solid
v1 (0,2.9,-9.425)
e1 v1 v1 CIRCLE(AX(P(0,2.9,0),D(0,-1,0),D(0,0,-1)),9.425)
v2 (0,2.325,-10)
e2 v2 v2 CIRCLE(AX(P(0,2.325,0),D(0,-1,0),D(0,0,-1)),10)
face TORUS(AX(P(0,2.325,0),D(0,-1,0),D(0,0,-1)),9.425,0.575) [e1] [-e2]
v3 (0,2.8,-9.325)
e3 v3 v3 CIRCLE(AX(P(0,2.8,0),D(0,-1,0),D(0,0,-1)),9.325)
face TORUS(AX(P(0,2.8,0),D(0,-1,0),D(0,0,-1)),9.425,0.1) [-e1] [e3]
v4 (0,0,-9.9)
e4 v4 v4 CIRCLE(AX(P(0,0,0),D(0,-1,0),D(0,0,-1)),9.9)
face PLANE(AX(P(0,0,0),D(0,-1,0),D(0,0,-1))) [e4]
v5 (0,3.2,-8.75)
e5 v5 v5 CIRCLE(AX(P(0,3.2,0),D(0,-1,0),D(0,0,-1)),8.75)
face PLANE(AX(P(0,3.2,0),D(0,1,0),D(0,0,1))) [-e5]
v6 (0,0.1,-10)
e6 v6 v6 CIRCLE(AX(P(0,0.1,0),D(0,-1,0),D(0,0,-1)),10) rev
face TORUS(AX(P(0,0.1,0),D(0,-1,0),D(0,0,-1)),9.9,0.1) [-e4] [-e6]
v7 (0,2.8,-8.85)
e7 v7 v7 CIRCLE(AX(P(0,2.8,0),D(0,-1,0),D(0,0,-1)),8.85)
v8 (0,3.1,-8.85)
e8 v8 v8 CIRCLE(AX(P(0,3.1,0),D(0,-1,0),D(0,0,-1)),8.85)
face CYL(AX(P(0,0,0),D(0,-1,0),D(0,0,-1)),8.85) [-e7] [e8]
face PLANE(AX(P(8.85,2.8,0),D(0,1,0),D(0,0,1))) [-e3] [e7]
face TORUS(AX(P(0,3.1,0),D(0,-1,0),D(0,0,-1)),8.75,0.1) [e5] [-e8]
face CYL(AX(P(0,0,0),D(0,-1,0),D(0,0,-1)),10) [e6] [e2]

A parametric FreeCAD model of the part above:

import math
import FreeCAD as App
import Part
import Sketcher
from FreeCAD import Vector
Q = App.Units.Quantity


def edges_at(feature, points):
    """Names of the edges that pass closest to the given points."""
    edges = feature.Shape.Edges
    near = lambda p: min(range(len(edges)), key=lambda i: edges[i].distToShape(Part.Vertex(*p))[0])
    return sorted({f"Edge{near(p) + 1}" for p in points})

doc = App.newDocument("Part")
body = doc.addObject("PartDesign::Body", "Body")

# Sketch on XY plane
sketch1 = body.newObject("Sketcher::SketchObject", "Sketch")
sketch1.AttachmentSupport = (doc.getObject("XY_Plane"), [""])
sketch1.MapMode = "FlatFace"
sketch1.addGeometry(Part.LineSegment(Vector(0, 0, 0), Vector(10, 0, 0)), False)
sketch1.addGeometry(Part.LineSegment(Vector(10, 0, 0), Vector(10, 2.325, 0)), False)
sketch1.addGeometry(Part.ArcOfCircle(Part.Circle(Vector(9.425, 2.325, 0), Vector(0, 0, 1), 0.575), math.radians(0), math.radians(90)), False)
sketch1.addGeometry(Part.ArcOfCircle(Part.Circle(Vector(9.425, 2.8, 0), Vector(0, 0, 1), 0.1), math.radians(90), math.radians(180)), False)
sketch1.addGeometry(Part.LineSegment(Vector(9.325, 2.8, 0), Vector(8.85, 2.8, 0)), False)
sketch1.addGeometry(Part.LineSegment(Vector(8.85, 2.8, 0), Vector(8.85, 3.1, 0)), False)
sketch1.addGeometry(Part.ArcOfCircle(Part.Circle(Vector(8.75, 3.1, 0), Vector(0, 0, 1), 0.1), math.radians(0), math.radians(90)), False)
sketch1.addGeometry(Part.LineSegment(Vector(8.75, 3.2, 0), Vector(0, 3.2, 0)), False)
sketch1.addGeometry(Part.LineSegment(Vector(0, 3.2, 0), Vector(0, 0, 0)), False)
sketch1.addConstraint(Sketcher.Constraint("Coincident", 0, 2, 1, 1))
sketch1.addConstraint(Sketcher.Constraint("Tangent", 1, 2, 2, 1))
sketch1.addConstraint(Sketcher.Constraint("Tangent", 2, 2, 3, 1))
sketch1.addConstraint(Sketcher.Constraint("Coincident", 3, 2, 4, 1))
sketch1.addConstraint(Sketcher.Constraint("Coincident", 4, 2, 5, 1))
sketch1.addConstraint(Sketcher.Constraint("Tangent", 5, 2, 6, 1))
sketch1.addConstraint(Sketcher.Constraint("Tangent", 6, 2, 7, 1))
sketch1.addConstraint(Sketcher.Constraint("Coincident", 7, 2, 8, 1))
sketch1.addConstraint(Sketcher.Constraint("Coincident", 8, 2, 0, 1))
sketch1.addConstraint(Sketcher.Constraint("Horizontal", 0))
sketch1.addConstraint(Sketcher.Constraint("Vertical", 1))
sketch1.addConstraint(Sketcher.Constraint("Horizontal", 4))
sketch1.addConstraint(Sketcher.Constraint("Vertical", 5))
sketch1.addConstraint(Sketcher.Constraint("Horizontal", 7))
sketch1.addConstraint(Sketcher.Constraint("Vertical", 8))
sketch1.addConstraint(Sketcher.Constraint("Coincident", 8, 2, -1, 1))
sketch1.addConstraint(Sketcher.Constraint("Equal", 3, 6))
sketch1.addConstraint(Sketcher.Constraint("Vertical", 2, 3, 3, 3))
sketch1.addConstraint(Sketcher.Constraint("Radius", 3, Q("0.1 mm")))
sketch1.addConstraint(Sketcher.Constraint("DistanceX", 0, 1, 0, 2, Q("10 mm")))
sketch1.addConstraint(Sketcher.Constraint("DistanceY", 5, 1, 5, 2, Q("0.3 mm")))
sketch1.addConstraint(Sketcher.Constraint("DistanceY", 8, 2, 8, 1, Q("3.2 mm")))
sketch1.addConstraint(Sketcher.Constraint("Radius", 2, Q("0.575 mm")))
sketch1.addConstraint(Sketcher.Constraint("DistanceX", 7, 2, 7, 1, Q("8.75 mm")))
sketch1.addConstraint(Sketcher.Constraint("DistanceY", -1, 1, 3, 3, Q("2.8 mm")))
revolution = body.newObject("PartDesign::Revolution", "Revolution")
revolution.Profile = sketch1
revolution.ReferenceAxis = (sketch1, ["V_Axis"])
revolution.Angle = 360
doc.recompute()

fillet = body.newObject("PartDesign::Fillet", "Fillet")
fillet.Base = (revolution, edges_at(revolution, [(-10, 0, 0)]))
fillet.Radius = 0.1

doc.recompute()
